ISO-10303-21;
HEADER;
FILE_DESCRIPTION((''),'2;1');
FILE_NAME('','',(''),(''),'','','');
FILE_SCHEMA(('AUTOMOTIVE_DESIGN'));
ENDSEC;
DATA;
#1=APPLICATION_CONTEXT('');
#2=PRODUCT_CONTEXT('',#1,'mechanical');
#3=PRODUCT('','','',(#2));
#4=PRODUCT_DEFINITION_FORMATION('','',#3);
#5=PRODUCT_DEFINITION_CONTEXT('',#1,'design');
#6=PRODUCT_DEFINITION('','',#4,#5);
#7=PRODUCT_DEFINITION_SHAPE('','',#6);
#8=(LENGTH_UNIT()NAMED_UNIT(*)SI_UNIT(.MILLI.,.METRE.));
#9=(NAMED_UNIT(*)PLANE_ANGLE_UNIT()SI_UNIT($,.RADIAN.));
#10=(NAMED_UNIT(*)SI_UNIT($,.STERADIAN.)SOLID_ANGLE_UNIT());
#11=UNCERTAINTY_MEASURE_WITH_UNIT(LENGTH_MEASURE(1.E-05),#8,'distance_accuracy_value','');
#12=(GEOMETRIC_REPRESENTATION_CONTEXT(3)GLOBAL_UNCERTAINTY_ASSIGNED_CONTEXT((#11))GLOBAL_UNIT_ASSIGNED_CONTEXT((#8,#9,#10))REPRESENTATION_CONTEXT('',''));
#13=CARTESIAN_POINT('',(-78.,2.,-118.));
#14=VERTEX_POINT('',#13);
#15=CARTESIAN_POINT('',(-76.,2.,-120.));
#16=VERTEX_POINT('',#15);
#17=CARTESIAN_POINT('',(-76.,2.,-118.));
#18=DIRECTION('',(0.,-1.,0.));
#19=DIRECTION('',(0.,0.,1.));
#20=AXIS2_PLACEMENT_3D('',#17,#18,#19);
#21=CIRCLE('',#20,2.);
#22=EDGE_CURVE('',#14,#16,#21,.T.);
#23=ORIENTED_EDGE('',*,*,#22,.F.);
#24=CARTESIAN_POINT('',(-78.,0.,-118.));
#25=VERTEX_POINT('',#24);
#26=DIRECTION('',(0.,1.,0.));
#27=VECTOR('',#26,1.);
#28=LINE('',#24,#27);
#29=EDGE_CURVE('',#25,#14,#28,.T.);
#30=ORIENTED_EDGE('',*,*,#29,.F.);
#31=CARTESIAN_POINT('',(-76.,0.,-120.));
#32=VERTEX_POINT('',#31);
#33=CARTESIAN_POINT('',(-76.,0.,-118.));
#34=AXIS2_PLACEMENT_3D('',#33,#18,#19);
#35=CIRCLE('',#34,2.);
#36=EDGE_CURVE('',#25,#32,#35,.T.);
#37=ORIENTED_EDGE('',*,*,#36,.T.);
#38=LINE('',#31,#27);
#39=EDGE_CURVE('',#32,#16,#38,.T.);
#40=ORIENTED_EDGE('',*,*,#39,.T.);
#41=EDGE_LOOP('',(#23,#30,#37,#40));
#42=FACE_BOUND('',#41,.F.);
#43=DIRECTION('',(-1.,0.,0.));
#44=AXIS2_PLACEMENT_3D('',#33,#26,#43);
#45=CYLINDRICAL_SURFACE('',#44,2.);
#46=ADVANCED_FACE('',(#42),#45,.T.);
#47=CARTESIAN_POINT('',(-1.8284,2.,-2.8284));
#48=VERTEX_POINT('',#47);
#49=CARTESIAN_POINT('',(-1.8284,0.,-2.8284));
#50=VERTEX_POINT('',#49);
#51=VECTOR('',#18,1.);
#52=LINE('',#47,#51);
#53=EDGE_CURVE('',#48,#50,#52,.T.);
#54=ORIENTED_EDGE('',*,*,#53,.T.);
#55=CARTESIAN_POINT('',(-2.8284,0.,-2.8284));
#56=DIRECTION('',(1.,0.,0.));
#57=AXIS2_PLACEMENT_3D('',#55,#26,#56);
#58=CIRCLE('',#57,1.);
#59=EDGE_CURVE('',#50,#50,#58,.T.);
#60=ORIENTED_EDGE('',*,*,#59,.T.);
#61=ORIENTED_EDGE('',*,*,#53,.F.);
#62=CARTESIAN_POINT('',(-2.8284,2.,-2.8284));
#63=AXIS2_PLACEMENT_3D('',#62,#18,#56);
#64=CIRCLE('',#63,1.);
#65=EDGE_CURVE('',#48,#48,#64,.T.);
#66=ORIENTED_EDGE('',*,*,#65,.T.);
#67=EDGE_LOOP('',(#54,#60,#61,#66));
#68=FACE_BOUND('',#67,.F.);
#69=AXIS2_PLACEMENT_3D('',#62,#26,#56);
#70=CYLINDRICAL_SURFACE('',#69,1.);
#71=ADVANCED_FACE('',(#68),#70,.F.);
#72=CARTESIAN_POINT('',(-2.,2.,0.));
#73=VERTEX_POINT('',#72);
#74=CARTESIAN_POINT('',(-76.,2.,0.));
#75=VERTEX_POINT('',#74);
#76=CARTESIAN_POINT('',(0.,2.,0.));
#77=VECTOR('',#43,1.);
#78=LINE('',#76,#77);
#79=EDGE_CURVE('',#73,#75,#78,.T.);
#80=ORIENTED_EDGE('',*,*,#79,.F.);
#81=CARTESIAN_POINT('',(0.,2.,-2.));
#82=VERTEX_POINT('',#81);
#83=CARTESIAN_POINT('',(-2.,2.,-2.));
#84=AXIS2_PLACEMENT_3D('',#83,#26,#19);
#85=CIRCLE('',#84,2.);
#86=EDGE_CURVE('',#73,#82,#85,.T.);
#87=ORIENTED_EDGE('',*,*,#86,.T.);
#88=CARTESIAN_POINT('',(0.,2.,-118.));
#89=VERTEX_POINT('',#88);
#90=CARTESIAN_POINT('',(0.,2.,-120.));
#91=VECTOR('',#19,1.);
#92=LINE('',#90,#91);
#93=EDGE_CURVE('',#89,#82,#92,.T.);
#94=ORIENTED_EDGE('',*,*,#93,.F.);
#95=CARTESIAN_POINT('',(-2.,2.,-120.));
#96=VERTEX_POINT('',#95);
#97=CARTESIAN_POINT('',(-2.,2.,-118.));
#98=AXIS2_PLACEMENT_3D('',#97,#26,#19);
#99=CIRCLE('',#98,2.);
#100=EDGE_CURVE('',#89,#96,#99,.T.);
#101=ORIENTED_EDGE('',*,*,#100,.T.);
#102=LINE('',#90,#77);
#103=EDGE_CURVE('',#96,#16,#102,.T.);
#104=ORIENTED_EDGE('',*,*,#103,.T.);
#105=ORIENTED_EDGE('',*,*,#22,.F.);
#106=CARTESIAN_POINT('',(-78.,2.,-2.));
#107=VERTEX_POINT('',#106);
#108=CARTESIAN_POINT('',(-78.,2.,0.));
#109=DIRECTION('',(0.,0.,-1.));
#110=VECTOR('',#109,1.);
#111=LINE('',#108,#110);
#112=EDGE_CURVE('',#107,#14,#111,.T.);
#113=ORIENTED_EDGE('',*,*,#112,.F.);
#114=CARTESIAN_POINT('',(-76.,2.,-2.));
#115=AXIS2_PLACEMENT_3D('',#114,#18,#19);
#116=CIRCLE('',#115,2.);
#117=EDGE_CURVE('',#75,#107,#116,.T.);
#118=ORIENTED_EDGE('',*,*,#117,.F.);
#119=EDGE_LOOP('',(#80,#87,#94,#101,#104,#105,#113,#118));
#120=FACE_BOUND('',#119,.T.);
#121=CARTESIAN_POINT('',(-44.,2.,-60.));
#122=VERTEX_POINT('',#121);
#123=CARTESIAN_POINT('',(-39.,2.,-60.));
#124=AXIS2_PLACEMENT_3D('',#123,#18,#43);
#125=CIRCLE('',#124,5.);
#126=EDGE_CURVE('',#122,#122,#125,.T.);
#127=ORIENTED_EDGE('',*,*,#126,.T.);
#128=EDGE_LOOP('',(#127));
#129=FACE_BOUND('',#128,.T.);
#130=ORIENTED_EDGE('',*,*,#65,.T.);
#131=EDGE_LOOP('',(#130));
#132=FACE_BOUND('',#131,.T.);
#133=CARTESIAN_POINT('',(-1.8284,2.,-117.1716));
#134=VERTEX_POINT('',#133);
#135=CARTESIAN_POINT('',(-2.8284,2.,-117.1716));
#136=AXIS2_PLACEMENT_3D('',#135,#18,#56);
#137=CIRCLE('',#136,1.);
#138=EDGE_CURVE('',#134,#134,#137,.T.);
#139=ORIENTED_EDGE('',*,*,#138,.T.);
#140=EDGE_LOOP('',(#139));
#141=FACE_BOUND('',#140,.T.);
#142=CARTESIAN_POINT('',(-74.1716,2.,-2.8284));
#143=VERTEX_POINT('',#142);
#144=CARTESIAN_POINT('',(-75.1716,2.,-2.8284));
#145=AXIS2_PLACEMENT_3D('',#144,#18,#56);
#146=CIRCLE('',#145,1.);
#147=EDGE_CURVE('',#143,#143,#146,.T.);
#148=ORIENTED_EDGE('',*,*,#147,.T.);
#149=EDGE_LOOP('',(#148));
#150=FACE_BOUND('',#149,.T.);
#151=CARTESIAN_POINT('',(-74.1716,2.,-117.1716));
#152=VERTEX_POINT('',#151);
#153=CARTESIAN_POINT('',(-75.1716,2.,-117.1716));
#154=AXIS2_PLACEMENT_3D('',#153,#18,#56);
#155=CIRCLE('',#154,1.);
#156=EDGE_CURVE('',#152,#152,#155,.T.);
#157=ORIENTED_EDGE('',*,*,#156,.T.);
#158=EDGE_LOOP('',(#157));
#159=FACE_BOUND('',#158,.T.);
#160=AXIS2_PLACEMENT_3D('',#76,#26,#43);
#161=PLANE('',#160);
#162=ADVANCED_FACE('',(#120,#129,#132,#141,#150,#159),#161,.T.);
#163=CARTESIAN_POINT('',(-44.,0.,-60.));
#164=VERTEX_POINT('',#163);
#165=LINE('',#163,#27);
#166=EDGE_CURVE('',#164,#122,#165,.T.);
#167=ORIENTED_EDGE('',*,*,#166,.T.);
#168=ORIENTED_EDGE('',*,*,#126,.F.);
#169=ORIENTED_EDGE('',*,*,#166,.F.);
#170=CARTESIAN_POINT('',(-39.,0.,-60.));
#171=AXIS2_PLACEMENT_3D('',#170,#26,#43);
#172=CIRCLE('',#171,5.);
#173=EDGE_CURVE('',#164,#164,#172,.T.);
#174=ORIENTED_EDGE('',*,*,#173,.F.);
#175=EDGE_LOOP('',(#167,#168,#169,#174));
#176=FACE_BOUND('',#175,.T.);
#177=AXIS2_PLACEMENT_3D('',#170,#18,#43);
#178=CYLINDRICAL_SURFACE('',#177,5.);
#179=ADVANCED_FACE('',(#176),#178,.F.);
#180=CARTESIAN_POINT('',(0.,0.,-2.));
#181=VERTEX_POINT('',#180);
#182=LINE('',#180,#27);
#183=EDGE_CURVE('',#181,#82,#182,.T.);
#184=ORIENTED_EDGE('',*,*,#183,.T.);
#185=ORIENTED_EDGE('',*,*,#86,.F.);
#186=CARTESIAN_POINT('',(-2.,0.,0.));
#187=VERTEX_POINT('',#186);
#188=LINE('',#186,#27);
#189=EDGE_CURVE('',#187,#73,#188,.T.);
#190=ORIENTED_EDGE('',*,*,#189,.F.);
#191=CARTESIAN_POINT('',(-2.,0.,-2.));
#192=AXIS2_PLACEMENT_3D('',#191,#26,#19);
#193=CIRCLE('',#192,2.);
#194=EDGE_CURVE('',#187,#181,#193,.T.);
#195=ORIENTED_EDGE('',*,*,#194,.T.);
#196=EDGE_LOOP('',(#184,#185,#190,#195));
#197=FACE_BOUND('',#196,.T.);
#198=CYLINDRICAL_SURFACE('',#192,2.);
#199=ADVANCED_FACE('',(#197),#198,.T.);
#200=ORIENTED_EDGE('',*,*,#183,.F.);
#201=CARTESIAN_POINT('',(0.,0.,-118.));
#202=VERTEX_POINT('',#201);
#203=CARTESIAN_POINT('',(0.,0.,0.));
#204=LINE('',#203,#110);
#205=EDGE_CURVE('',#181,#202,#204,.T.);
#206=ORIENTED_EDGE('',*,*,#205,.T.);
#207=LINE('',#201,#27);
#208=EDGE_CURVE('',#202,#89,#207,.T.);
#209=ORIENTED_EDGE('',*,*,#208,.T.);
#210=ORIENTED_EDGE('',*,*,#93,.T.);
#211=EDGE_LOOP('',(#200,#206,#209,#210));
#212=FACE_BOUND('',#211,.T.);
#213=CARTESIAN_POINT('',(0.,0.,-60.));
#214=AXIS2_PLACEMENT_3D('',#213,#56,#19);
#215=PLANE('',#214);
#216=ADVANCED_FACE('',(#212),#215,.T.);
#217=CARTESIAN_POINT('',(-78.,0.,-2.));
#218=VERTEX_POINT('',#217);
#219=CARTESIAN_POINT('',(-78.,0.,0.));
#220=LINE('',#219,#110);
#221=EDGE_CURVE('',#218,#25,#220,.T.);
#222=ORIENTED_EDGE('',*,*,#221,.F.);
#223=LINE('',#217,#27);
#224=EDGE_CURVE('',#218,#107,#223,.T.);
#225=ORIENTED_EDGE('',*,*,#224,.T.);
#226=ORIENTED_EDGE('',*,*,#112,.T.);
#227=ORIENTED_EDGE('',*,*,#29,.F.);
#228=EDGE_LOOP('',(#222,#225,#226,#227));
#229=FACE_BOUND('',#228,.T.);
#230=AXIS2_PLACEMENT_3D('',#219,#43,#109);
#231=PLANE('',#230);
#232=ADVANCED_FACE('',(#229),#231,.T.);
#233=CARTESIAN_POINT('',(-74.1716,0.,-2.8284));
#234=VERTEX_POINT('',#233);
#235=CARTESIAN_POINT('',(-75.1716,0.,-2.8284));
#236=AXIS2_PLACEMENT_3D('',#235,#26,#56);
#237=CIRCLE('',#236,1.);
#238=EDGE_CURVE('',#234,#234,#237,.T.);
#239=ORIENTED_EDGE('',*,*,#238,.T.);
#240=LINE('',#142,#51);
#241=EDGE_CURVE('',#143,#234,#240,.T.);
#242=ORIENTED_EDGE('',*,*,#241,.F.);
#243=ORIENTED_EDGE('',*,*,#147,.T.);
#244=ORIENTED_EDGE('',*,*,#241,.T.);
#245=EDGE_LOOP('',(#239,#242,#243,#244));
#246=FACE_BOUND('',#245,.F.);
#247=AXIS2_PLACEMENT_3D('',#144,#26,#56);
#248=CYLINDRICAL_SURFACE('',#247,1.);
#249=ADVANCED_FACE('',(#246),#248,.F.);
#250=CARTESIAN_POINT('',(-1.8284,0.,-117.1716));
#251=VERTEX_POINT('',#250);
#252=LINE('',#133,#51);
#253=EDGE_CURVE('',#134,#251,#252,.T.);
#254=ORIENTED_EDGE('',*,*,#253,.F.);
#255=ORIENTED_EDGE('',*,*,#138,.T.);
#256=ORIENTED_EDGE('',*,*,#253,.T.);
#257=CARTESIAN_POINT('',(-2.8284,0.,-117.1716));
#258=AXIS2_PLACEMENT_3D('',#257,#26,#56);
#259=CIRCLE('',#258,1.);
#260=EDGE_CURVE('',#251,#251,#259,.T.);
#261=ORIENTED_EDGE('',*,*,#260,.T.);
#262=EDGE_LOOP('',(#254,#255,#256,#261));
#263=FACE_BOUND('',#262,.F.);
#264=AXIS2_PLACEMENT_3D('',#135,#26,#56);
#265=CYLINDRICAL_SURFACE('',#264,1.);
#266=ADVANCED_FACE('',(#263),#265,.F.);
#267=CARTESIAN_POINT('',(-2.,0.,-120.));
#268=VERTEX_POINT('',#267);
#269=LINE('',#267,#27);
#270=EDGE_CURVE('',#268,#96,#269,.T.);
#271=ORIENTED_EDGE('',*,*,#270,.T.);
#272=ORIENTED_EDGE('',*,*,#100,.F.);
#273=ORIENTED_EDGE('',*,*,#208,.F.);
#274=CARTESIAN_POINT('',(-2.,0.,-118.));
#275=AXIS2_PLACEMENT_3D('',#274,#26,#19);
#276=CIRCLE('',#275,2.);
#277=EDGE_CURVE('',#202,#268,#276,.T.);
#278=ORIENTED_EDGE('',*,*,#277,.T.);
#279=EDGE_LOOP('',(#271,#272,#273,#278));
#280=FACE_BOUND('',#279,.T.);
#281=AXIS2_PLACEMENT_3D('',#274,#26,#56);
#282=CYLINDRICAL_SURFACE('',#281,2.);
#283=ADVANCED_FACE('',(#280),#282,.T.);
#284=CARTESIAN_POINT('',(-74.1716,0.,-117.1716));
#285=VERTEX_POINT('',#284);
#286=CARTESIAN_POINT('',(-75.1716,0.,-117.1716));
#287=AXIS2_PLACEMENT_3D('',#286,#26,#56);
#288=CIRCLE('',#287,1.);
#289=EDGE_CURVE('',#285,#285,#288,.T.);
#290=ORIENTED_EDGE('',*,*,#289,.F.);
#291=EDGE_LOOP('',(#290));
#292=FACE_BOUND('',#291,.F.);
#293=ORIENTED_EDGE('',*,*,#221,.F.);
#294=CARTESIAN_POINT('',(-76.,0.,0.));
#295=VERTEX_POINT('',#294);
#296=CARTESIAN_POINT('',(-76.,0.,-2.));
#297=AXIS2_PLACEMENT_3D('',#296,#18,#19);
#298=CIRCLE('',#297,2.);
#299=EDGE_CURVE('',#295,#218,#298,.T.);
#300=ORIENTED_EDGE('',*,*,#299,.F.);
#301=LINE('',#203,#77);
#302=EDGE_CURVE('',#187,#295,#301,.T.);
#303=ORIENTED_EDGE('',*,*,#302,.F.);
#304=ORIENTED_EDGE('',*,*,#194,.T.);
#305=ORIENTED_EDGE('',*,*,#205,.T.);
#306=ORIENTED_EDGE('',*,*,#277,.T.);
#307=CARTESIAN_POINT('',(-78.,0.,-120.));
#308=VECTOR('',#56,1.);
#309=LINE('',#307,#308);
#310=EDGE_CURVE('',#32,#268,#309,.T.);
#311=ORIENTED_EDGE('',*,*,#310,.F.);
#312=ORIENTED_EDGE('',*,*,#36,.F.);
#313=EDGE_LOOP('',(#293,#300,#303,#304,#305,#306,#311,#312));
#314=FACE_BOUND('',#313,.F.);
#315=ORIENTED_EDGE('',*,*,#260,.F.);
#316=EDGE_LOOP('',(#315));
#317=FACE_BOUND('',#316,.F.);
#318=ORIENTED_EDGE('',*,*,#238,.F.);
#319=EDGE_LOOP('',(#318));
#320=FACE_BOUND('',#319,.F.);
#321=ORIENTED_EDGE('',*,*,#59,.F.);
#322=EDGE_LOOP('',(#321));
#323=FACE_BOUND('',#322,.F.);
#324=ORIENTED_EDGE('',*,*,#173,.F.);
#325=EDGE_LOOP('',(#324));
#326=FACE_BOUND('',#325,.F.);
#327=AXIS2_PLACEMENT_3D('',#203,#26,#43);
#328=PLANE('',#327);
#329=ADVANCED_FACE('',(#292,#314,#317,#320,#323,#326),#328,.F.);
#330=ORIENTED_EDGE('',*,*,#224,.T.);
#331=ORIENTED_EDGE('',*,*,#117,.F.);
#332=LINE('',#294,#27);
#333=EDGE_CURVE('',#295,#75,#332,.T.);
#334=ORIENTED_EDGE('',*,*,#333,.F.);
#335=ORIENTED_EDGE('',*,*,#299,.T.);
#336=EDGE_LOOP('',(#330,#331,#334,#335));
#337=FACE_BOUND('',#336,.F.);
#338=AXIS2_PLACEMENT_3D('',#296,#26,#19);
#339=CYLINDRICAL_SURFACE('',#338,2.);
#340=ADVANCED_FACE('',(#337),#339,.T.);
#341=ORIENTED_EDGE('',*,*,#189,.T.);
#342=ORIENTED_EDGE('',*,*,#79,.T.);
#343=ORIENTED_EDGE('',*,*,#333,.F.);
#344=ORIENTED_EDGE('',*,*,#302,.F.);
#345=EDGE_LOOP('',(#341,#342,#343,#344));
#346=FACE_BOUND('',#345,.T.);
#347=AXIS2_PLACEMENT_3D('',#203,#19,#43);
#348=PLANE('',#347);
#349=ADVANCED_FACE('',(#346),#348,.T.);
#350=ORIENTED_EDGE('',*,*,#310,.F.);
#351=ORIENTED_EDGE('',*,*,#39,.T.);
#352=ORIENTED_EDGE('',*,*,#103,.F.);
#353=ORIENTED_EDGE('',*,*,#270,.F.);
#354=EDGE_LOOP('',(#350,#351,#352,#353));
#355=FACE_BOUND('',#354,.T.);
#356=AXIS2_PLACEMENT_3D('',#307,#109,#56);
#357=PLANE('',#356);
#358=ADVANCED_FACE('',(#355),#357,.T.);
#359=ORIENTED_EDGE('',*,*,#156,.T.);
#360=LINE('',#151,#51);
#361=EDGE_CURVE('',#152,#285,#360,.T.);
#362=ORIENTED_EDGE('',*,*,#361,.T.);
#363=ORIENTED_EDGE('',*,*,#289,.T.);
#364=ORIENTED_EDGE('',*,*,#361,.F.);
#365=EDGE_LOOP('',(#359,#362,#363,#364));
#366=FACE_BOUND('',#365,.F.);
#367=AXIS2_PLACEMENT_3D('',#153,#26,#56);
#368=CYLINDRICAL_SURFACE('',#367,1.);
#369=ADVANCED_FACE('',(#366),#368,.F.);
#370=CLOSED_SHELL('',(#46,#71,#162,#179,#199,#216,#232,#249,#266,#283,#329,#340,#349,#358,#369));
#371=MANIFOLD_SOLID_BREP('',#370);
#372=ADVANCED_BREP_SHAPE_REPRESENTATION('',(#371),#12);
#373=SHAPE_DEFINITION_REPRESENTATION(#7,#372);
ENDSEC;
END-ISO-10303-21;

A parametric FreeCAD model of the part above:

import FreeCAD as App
import Part
import Sketcher


def edges_at(feature, points):
    """Names of the edges that pass closest to the given points."""
    edges = feature.Shape.Edges
    near = lambda p: min(range(len(edges)), key=lambda i: edges[i].distToShape(Part.Vertex(*p))[0])
    return sorted({f"Edge{near(p) + 1}" for p in points})

doc = App.newDocument("Part")
body = doc.addObject("PartDesign::Body", "Body")

sketch1 = body.newObject("Sketcher::SketchObject", "Sketch")
sketch1.AttachmentSupport = (doc.getObject("XZ_Plane"), [""])
sketch1.MapMode = "FlatFace"
sketch1.addGeometry([
    Part.LineSegment(App.Vector(-78, 0, 0), App.Vector(0, 0, 0)),
    Part.LineSegment(App.Vector(0, 0, 0), App.Vector(0, -120, 0)),
    Part.LineSegment(App.Vector(0, -120, 0), App.Vector(-78, -120, 0)),
    Part.LineSegment(App.Vector(-78, -120, 0), App.Vector(-78, 0, 0)),
    Part.Circle(App.Vector(-39, -60, 0), App.Vector(0, 0, 1), 5),
], False)
sketch1.addConstraint([
    Sketcher.Constraint("Coincident", 0, 2, 1, 1),
    Sketcher.Constraint("Coincident", 1, 2, 2, 1),
    Sketcher.Constraint("Coincident", 2, 2, 3, 1),
    Sketcher.Constraint("Coincident", 3, 2, 0, 1),
    Sketcher.Constraint("Horizontal", 0),
    Sketcher.Constraint("Vertical", 1),
    Sketcher.Constraint("Horizontal", 2),
    Sketcher.Constraint("Vertical", 3),
    Sketcher.Constraint("Coincident", 0, 2, -1, 1),
    Sketcher.Constraint("Diameter", 4, 10.0),
    Sketcher.Constraint("DistanceX", 0, 1, 0, 2, 78.0),
    Sketcher.Constraint("DistanceY", 1, 2, 1, 1, 120.0),
    Sketcher.Constraint("DistanceX", 4, 3, -1, 1, 39.0),
    Sketcher.Constraint("DistanceY", 4, 3, -1, 1, 60.0),
])
pad1 = body.newObject("PartDesign::Pad", "Pad")
pad1.Profile = sketch1
pad1.Length = 2
pad1.Reversed = True
doc.recompute()

fillet = body.newObject("PartDesign::Fillet", "Fillet")
fillet.Base = (pad1, edges_at(pad1, [
    (0, 1, 0),
    (-78, 1, -120),
    (0, 1, -120),
    (-78, 1, 0),
]))
fillet.Radius = 2

sketch2 = body.newObject("Sketcher::SketchObject", "Sketch001")
sketch2.AttachmentSupport = (doc.getObject("XZ_Plane"), [""])
sketch2.MapMode = "FlatFace"
sketch2.AttachmentOffset = App.Placement(App.Vector(0, 0, -2), App.Rotation())
sketch2.addGeometry([
    Part.Circle(App.Vector(-2.8284, -2.8284, 0), App.Vector(0, 0, 1), 1),
    Part.Circle(App.Vector(-2.8284, -117.1716, 0), App.Vector(0, 0, 1), 1),
    Part.Circle(App.Vector(-75.1716, -117.1716, 0), App.Vector(0, 0, 1), 1),
    Part.Circle(App.Vector(-75.1716, -2.8284, 0), App.Vector(0, 0, 1), 1),
], False)
sketch2.addConstraint([
    Sketcher.Constraint("Equal", 0, 1),
    Sketcher.Constraint("Equal", 1, 2),
    Sketcher.Constraint("Equal", 2, 3),
    Sketcher.Constraint("Horizontal", 1, 3, 2, 3),
    Sketcher.Constraint("Horizontal", 0, 3, 3, 3),
    Sketcher.Constraint("Vertical", 0, 3, 1, 3),
    Sketcher.Constraint("Vertical", 2, 3, 3, 3),
    Sketcher.Constraint("Diameter", 0, 2.0),
    Sketcher.Constraint("DistanceX", 0, 3, -1, 1, 2.8284),
    Sketcher.Constraint("DistanceY", 0, 3, -1, 1, 2.8284),
    Sketcher.Constraint("DistanceY", 1, 3, -1, 1, 117.1716),
    Sketcher.Constraint("DistanceX", 2, 3, -1, 1, 75.1716),
])
pocket1 = body.newObject("PartDesign::Pocket", "Pocket")
pocket1.Profile = sketch2
pocket1.Length = 2
pocket1.Reversed = True

doc.recompute()
